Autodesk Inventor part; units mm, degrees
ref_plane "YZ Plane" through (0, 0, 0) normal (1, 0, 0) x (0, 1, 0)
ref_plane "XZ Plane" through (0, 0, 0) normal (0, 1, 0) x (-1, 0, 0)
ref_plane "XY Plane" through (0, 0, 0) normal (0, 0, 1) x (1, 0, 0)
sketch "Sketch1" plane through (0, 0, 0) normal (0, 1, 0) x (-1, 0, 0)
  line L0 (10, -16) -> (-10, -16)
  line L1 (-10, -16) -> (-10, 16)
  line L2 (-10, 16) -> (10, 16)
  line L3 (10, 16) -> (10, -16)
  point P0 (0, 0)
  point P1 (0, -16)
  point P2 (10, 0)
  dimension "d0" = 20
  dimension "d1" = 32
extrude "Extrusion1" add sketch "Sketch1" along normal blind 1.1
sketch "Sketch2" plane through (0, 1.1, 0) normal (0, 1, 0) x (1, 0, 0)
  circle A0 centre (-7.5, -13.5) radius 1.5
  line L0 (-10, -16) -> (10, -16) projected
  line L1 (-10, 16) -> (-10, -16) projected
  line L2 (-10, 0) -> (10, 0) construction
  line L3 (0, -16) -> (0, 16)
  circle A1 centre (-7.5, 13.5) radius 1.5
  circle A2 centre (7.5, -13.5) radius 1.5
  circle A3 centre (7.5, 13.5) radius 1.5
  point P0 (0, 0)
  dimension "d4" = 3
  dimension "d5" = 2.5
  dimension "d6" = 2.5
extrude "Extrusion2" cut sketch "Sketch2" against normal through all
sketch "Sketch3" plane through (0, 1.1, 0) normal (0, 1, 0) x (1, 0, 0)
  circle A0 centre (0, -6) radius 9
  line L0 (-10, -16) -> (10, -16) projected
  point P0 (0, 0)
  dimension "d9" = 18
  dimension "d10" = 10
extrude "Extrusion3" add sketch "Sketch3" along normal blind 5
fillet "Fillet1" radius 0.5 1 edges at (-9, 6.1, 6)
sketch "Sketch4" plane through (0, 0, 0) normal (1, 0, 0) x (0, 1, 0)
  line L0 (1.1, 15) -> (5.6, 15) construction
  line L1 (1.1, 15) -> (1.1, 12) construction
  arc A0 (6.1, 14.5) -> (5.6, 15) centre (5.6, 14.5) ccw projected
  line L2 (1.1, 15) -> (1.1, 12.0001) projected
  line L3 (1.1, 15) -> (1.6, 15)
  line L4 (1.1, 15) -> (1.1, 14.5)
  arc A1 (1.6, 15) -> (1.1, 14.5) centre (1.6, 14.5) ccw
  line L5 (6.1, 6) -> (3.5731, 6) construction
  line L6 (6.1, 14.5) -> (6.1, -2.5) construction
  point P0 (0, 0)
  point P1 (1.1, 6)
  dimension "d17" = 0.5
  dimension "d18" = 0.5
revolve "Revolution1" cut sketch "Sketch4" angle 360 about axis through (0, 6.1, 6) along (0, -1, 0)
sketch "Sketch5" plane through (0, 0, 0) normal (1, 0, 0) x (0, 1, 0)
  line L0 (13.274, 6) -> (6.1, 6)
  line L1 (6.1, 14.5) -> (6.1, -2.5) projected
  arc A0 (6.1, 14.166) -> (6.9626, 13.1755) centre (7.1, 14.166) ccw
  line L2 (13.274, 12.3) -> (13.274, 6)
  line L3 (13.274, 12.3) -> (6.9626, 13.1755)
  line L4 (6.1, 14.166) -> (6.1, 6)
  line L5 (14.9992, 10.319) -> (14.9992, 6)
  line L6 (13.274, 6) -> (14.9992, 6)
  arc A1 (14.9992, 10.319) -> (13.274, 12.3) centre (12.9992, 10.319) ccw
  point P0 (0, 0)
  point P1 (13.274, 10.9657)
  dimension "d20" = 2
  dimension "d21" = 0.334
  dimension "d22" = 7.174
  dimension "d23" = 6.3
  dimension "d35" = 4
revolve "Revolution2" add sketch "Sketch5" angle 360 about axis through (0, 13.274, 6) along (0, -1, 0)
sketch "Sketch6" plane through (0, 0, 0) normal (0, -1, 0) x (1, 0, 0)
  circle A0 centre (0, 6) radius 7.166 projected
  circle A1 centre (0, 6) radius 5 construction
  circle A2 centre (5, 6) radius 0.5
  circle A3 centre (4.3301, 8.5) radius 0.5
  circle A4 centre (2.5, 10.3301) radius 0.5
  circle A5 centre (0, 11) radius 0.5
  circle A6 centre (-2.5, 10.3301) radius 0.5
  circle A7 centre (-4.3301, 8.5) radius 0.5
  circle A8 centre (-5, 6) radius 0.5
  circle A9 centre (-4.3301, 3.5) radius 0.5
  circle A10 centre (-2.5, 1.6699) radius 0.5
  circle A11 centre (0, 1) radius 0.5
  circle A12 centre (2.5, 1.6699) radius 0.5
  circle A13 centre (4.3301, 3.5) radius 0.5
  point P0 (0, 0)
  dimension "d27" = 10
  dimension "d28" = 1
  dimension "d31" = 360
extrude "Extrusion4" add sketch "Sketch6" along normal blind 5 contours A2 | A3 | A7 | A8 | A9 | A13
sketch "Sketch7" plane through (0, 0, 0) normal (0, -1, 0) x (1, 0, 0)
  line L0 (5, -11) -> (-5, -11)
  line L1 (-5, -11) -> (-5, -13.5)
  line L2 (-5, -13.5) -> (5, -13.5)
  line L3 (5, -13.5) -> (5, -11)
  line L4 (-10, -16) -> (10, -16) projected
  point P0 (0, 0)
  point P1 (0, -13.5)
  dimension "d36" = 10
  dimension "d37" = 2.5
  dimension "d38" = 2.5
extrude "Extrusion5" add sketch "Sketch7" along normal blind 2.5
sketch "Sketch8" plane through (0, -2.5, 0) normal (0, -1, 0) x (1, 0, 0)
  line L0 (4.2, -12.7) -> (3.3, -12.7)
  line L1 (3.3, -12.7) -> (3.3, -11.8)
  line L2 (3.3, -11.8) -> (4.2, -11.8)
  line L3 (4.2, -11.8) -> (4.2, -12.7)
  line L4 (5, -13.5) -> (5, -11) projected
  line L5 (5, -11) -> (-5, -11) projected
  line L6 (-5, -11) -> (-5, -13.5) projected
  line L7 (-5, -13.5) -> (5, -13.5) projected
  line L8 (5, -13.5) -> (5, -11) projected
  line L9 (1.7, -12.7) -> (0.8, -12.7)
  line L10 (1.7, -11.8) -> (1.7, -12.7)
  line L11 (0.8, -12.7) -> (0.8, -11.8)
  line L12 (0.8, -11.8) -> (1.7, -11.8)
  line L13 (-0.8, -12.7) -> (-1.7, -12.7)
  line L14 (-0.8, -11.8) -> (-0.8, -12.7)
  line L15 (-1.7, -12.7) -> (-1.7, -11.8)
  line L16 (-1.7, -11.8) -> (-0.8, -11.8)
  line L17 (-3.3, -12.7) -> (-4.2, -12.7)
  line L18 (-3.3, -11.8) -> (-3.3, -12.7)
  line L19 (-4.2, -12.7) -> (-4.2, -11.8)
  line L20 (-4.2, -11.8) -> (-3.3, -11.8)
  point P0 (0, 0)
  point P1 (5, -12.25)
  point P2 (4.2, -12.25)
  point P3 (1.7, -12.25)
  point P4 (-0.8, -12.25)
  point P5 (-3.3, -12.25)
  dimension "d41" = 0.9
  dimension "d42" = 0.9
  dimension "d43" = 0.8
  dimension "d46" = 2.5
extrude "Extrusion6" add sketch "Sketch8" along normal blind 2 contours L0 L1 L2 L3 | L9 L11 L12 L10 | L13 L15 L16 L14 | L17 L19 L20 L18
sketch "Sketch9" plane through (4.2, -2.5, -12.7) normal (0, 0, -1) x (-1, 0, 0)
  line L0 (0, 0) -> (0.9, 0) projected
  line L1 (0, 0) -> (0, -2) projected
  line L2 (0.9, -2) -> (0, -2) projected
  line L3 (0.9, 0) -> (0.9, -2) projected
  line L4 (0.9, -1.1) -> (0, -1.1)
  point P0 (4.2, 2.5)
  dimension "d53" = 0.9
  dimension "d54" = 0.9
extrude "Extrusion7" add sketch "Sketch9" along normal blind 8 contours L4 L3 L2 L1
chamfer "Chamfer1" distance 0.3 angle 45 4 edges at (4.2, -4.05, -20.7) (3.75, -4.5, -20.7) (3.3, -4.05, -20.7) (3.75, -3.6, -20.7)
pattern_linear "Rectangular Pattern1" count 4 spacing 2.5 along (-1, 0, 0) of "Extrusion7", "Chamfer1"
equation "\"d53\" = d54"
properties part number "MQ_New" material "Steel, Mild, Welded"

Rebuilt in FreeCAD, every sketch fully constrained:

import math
import FreeCAD as App
import Part
import Sketcher
from FreeCAD import Vector


def edges_at(feature, points):
    """Names of the edges that pass closest to the given points."""
    edges = feature.Shape.Edges
    near = lambda p: min(range(len(edges)), key=lambda i: edges[i].distToShape(Part.Vertex(*p))[0])
    return sorted({f"Edge{near(p) + 1}" for p in points})


def add_polygon(sketch, points):
    """Adds a closed chain of lines whose ends are joined by coincident constraints."""
    first, n = sketch.GeometryCount, len(points)
    for a, b in zip(points, points[1:] + points[:1]):
        sketch.addGeometry(Part.LineSegment(App.Vector(*a, 0), App.Vector(*b, 0)), False)
    for i in range(n):
        sketch.addConstraint(Sketcher.Constraint("Coincident", first + i, 2, first + (i + 1) % n, 1))

doc = App.newDocument("Part")
body = doc.addObject("PartDesign::Body", "Body")

sketch1 = body.newObject("Sketcher::SketchObject", "Sketch")
sketch1.AttachmentSupport = (doc.getObject("XZ_Plane"), [""])
sketch1.MapMode = "FlatFace"
add_polygon(sketch1, [(10, -16), (-10, -16), (-10, 16), (10, 16)])
sketch1.addConstraint([
    Sketcher.Constraint("Horizontal", 0),
    Sketcher.Constraint("Vertical", 1),
    Sketcher.Constraint("Horizontal", 2),
    Sketcher.Constraint("Vertical", 3),
    Sketcher.Constraint("Symmetric", 0, 2, 2, 2, -1, 1),
    Sketcher.Constraint("DistanceX", 0, 2, 0, 1, 20.0),
    Sketcher.Constraint("DistanceY", 1, 1, 1, 2, 32.0),
])
pad1 = body.newObject("PartDesign::Pad", "Pad")
pad1.Profile = sketch1
pad1.Length = 1.1
pad1.Reversed = True

sketch2 = body.newObject("Sketcher::SketchObject", "Sketch001")
sketch2.AttachmentSupport = (doc.getObject("XZ_Plane"), [""])
sketch2.MapMode = "FlatFace"
sketch2.AttachmentOffset = App.Placement(Vector(0, 0, -1.1), App.Rotation())
sketch2.addGeometry([
    Part.Circle(Vector(-7.5, 13.5, 0), Vector(0, 0, 1), 1.5),
    Part.Circle(Vector(-7.5, -13.5, 0), Vector(0, 0, 1), 1.5),
    Part.Circle(Vector(7.5, 13.5, 0), Vector(0, 0, 1), 1.5),
    Part.Circle(Vector(7.5, -13.5, 0), Vector(0, 0, 1), 1.5),
], False)
sketch2.addConstraint([
    Sketcher.Constraint("Equal", 0, 1),
    Sketcher.Constraint("Equal", 1, 2),
    Sketcher.Constraint("Equal", 2, 3),
    Sketcher.Constraint("Symmetric", 1, 3, 2, 3, -1, 1),
    Sketcher.Constraint("Symmetric", 0, 3, 3, 3, -1, 1),
    Sketcher.Constraint("Symmetric", 0, 3, 2, 3, -2),
    Sketcher.Constraint("Diameter", 0, 3.0),
    Sketcher.Constraint("DistanceY", 1, 3, 0, 3, 27.0),
    Sketcher.Constraint("DistanceX", 0, 3, 2, 3, 15.0),
])
pocket1 = body.newObject("PartDesign::Pocket", "Pocket")
pocket1.Profile = sketch2
pocket1.Type = "ThroughAll"
pocket1.Reversed = True

sketch3 = body.newObject("Sketcher::SketchObject", "Sketch002")
sketch3.AttachmentSupport = (doc.getObject("XZ_Plane"), [""])
sketch3.MapMode = "FlatFace"
sketch3.AttachmentOffset = App.Placement(Vector(0, 0, -1.1), App.Rotation())
sketch3.addGeometry(Part.Circle(Vector(0, 6, 0), Vector(0, 0, 1), 9), False)
sketch3.addConstraint([
    Sketcher.Constraint("PointOnObject", 0, 3, -2),
    Sketcher.Constraint("Diameter", 0, 18.0),
    Sketcher.Constraint("DistanceY", -1, 1, 0, 3, 6.0),
])
pad2 = body.newObject("PartDesign::Pad", "Pad001")
pad2.Profile = sketch3
pad2.Length = 5
pad2.Reversed = True
doc.recompute()

fillet = body.newObject("PartDesign::Fillet", "Fillet")
fillet.Base = (pad2, edges_at(pad2, [(-9, 6.1, 6)]))
fillet.Radius = 0.5

sketch4 = body.newObject("Sketcher::SketchObject", "Sketch003")
sketch4.AttachmentSupport = (doc.getObject("YZ_Plane"), [""])
sketch4.MapMode = "FlatFace"
sketch4.addGeometry([
    Part.LineSegment(Vector(1.6, 15, 0), Vector(1.1, 15, 0)),
    Part.LineSegment(Vector(1.1, 15, 0), Vector(1.1, 14.5, 0)),
    Part.ArcOfCircle(Part.Circle(Vector(1.6, 14.5, 0), Vector(0, 0, 1), 0.5), math.radians(90), math.radians(180)),
], False)
sketch4.addGeometry(Part.LineSegment(Vector(1.6, 6, 0), Vector(1.1, 6, 0)), True)
sketch4.addConstraint([
    Sketcher.Constraint("Coincident", 0, 2, 1, 1),
    Sketcher.Constraint("Tangent", 1, 2, 2, 2),
    Sketcher.Constraint("Tangent", 2, 1, 0, 1),
    Sketcher.Constraint("Horizontal", 0),
    Sketcher.Constraint("Vertical", 1),
    Sketcher.Constraint("Horizontal", 3),
    Sketcher.Constraint("Vertical", 2, 1, 3, 1),
    Sketcher.Constraint("Vertical", 1, 2, 3, 2),
    Sketcher.Constraint("Radius", 2, 0.5),
    Sketcher.Constraint("DistanceY", -1, 1, 0, 2, 15.0),
    Sketcher.Constraint("DistanceY", -1, 1, 3, 1, 6.0),
    Sketcher.Constraint("DistanceX", -1, 1, 2, 3, 1.6),
])
groove = body.newObject("PartDesign::Groove", "Groove")
groove.Profile = sketch4
groove.ReferenceAxis = (sketch4, ["Axis0"])
groove.Angle = 360

sketch5 = body.newObject("Sketcher::SketchObject", "Sketch004")
sketch5.AttachmentSupport = (doc.getObject("YZ_Plane"), [""])
sketch5.MapMode = "FlatFace"
sketch5.addGeometry([
    Part.LineSegment(Vector(6.1, 6, 0), Vector(15, 6, 0)),
    Part.LineSegment(Vector(15, 6, 0), Vector(15, 10.3, 0)),
    Part.ArcOfCircle(Part.Circle(Vector(13, 10.3, 0), Vector(0, 0, 1), 2), math.radians(0), math.radians(82)),
    Part.LineSegment(Vector(13.3, 12.3, 0), Vector(7, 13.2, 0)),
    Part.ArcOfCircle(Part.Circle(Vector(7.1, 14.2, 0), Vector(0, 0, 1), 1), math.radians(180), math.radians(262)),
    Part.LineSegment(Vector(6.1, 14.2, 0), Vector(6.1, 6, 0)),
], False)
sketch5.addGeometry(Part.LineSegment(Vector(15, 6, 0), Vector(6.1, 6, 0)), True)
sketch5.addConstraint([
    Sketcher.Constraint("Coincident", 0, 2, 1, 1),
    Sketcher.Constraint("Tangent", 1, 2, 2, 1),
    Sketcher.Constraint("Tangent", 2, 2, 3, 1),
    Sketcher.Constraint("Tangent", 3, 2, 4, 2),
    Sketcher.Constraint("Tangent", 4, 1, 5, 1),
    Sketcher.Constraint("Coincident", 5, 2, 0, 1),
    Sketcher.Constraint("Horizontal", 0),
    Sketcher.Constraint("Vertical", 1),
    Sketcher.Constraint("Vertical", 5),
    Sketcher.Constraint("Horizontal", 6),
    Sketcher.Constraint("Coincident", 6, 1, 0, 2),
    Sketcher.Constraint("Vertical", 4, 1, 6, 2),
    Sketcher.Constraint("Radius", 2, 2.0),
    Sketcher.Constraint("Radius", 4, 1.0),
    Sketcher.Constraint("DistanceY", 0, 2, 2, 2, 6.3),
    Sketcher.Constraint("DistanceY", -1, 1, 0, 2, 6.0),
    Sketcher.Constraint("DistanceX", 4, 1, 2, 2, 7.174),
    Sketcher.Constraint("DistanceX", -1, 1, 4, 3, 7.1),
    Sketcher.Constraint("DistanceY", 1, 1, 1, 2, 4.319),
])
revolution = body.newObject("PartDesign::Revolution", "Revolution")
revolution.Profile = sketch5
revolution.ReferenceAxis = (sketch5, ["Axis0"])
revolution.Angle = 360

sketch6 = body.newObject("Sketcher::SketchObject", "Sketch005")
sketch6.AttachmentSupport = (doc.getObject("XZ_Plane"), [""])
sketch6.MapMode = "FlatFace"
sketch6.addGeometry([
    Part.Circle(Vector(5, 6, 0), Vector(0, 0, 1), 0.5),
    Part.Circle(Vector(4.3, 8.5, 0), Vector(0, 0, 1), 0.5),
    Part.Circle(Vector(-4.3, 8.5, 0), Vector(0, 0, 1), 0.5),
    Part.Circle(Vector(-5, 6, 0), Vector(0, 0, 1), 0.5),
    Part.Circle(Vector(-4.3, 3.5, 0), Vector(0, 0, 1), 0.5),
    Part.Circle(Vector(4.3, 3.5, 0), Vector(0, 0, 1), 0.5),
], False)
sketch6.addConstraint([
    Sketcher.Constraint("Equal", 0, 1),
    Sketcher.Constraint("Equal", 1, 2),
    Sketcher.Constraint("Equal", 2, 3),
    Sketcher.Constraint("Equal", 3, 4),
    Sketcher.Constraint("Equal", 4, 5),
    Sketcher.Constraint("Symmetric", 1, 3, 2, 3, -2),
    Sketcher.Constraint("Symmetric", 0, 3, 3, 3, -2),
    Sketcher.Constraint("Symmetric", 4, 3, 5, 3, -2),
    Sketcher.Constraint("Vertical", 2, 3, 4, 3),
    Sketcher.Constraint("Diameter", 0, 1.0),
    Sketcher.Constraint("DistanceX", 3, 3, 0, 3, 10.0),
    Sketcher.Constraint("DistanceY", -1, 1, 0, 3, 6.0),
    Sketcher.Constraint("DistanceY", 4, 3, 2, 3, 5.0),
    Sketcher.Constraint("DistanceY", -1, 1, 1, 3, 8.5),
    Sketcher.Constraint("DistanceX", -1, 1, 1, 3, 4.33),
])
pad3 = body.newObject("PartDesign::Pad", "Pad002")
pad3.Profile = sketch6
pad3.Length = 5

sketch7 = body.newObject("Sketcher::SketchObject", "Sketch006")
sketch7.AttachmentSupport = (doc.getObject("XZ_Plane"), [""])
sketch7.MapMode = "FlatFace"
add_polygon(sketch7, [(5, -13.5), (5, -11), (-5, -11), (-5, -13.5)])
sketch7.addConstraint([
    Sketcher.Constraint("Vertical", 0),
    Sketcher.Constraint("Horizontal", 1),
    Sketcher.Constraint("Vertical", 2),
    Sketcher.Constraint("Horizontal", 3),
    Sketcher.Constraint("DistanceX", 1, 2, 1, 1, 10.0),
    Sketcher.Constraint("DistanceY", 0, 1, 0, 2, 2.5),
    Sketcher.Constraint("DistanceX", -1, 1, 0, 2, 5.0),
    Sketcher.Constraint("DistanceY", 0, 2, -1, 1, 11.0),
])
pad4 = body.newObject("PartDesign::Pad", "Pad003")
pad4.Profile = sketch7
pad4.Length = 2.5

sketch8 = body.newObject("Sketcher::SketchObject", "Sketch007")
sketch8.AttachmentSupport = (doc.getObject("XZ_Plane"), [""])
sketch8.MapMode = "FlatFace"
sketch8.AttachmentOffset = App.Placement(Vector(0, 0, 2.5), App.Rotation())
add_polygon(sketch8, [(3.3, -12.7), (4.2, -12.7), (4.2, -11.8), (3.3, -11.8)])
add_polygon(sketch8, [(0.8, -12.7), (1.7, -12.7), (1.7, -11.8), (0.8, -11.8)])
add_polygon(sketch8, [(-1.7, -12.7), (-0.8, -12.7), (-0.8, -11.8), (-1.7, -11.8)])
add_polygon(sketch8, [(-4.2, -12.7), (-3.3, -12.7), (-3.3, -11.8), (-4.2, -11.8)])
sketch8.addConstraint([
    Sketcher.Constraint("Horizontal", 0),
    Sketcher.Constraint("Vertical", 1),
    Sketcher.Constraint("Horizontal", 2),
    Sketcher.Constraint("Vertical", 3),
    Sketcher.Constraint("Horizontal", 4),
    Sketcher.Constraint("Vertical", 5),
    Sketcher.Constraint("Horizontal", 6),
    Sketcher.Constraint("Vertical", 7),
    Sketcher.Constraint("Horizontal", 8),
    Sketcher.Constraint("Vertical", 9),
    Sketcher.Constraint("Horizontal", 10),
    Sketcher.Constraint("Vertical", 11),
    Sketcher.Constraint("Horizontal", 12),
    Sketcher.Constraint("Vertical", 13),
    Sketcher.Constraint("Horizontal", 14),
    Sketcher.Constraint("Vertical", 15),
    Sketcher.Constraint("Symmetric", 7, 2, 8, 2, -2),
    Sketcher.Constraint("Symmetric", 5, 2, 10, 2, -2),
    Sketcher.Constraint("Symmetric", 3, 2, 12, 2, -2),
    Sketcher.Constraint("Symmetric", 1, 2, 14, 2, -2),
    Sketcher.Constraint("Horizontal", 3, 2, 4, 2),
    Sketcher.Constraint("Horizontal", 2, 2, 5, 2),
    Sketcher.Constraint("Equal", 2, 4),
    Sketcher.Constraint("Equal", 14, 1),
    Sketcher.Constraint("DistanceX", 0, 1, 0, 2, 0.9),
    Sketcher.Constraint("DistanceX", -1, 1, 6, 2, 0.8),
    Sketcher.Constraint("DistanceX", 4, 2, 0, 2, 2.5),
    Sketcher.Constraint("DistanceY", 0, 2, -1, 1, 12.7),
])
pad5 = body.newObject("PartDesign::Pad", "Pad004")
pad5.Profile = sketch8
pad5.Length = 2

sketch9 = body.newObject("Sketcher::SketchObject", "Sketch008")
sketch9.AttachmentSupport = (doc.getObject("XY_Plane"), [""])
sketch9.MapMode = "FlatFace"
sketch9.AttachmentOffset = App.Placement(Vector(0, 0, -12.7), App.Rotation())
add_polygon(sketch9, [(3.3, -3.6), (4.2, -3.6), (4.2, -4.5), (3.3, -4.5)])
sketch9.addConstraint([
    Sketcher.Constraint("Horizontal", 0),
    Sketcher.Constraint("Vertical", 1),
    Sketcher.Constraint("Horizontal", 2),
    Sketcher.Constraint("Vertical", 3),
    Sketcher.Constraint("Equal", 2, 1),
    Sketcher.Constraint("DistanceX", 0, 1, 0, 2, 0.9),
    Sketcher.Constraint("DistanceX", -1, 1, 0, 2, 4.2),
    Sketcher.Constraint("DistanceY", 0, 2, -1, 1, 3.6),
])
pad6 = body.newObject("PartDesign::Pad", "Pad005")
pad6.Profile = sketch9
pad6.Length = 8
pad6.Reversed = True
doc.recompute()

chamfer = body.newObject("PartDesign::Chamfer", "Chamfer")
chamfer.Base = (pad6, edges_at(pad6, [
    (4.2, -4.05, -20.7),
    (3.75, -4.5, -20.7),
    (3.3, -4.05, -20.7),
    (3.75, -3.6, -20.7),
]))
chamfer.Size = 0.3
doc.recompute()

linearpattern = body.newObject("PartDesign::LinearPattern", "LinearPattern")
linearpattern.Originals = [pad6, chamfer]
linearpattern.Direction = (doc.getObject("X_Axis"), [""])
linearpattern.Mode = "offset"
linearpattern.Offset = 2.5
linearpattern.Occurrences = 4
linearpattern.Reversed = True
body.Tip = linearpattern

doc.recompute()
